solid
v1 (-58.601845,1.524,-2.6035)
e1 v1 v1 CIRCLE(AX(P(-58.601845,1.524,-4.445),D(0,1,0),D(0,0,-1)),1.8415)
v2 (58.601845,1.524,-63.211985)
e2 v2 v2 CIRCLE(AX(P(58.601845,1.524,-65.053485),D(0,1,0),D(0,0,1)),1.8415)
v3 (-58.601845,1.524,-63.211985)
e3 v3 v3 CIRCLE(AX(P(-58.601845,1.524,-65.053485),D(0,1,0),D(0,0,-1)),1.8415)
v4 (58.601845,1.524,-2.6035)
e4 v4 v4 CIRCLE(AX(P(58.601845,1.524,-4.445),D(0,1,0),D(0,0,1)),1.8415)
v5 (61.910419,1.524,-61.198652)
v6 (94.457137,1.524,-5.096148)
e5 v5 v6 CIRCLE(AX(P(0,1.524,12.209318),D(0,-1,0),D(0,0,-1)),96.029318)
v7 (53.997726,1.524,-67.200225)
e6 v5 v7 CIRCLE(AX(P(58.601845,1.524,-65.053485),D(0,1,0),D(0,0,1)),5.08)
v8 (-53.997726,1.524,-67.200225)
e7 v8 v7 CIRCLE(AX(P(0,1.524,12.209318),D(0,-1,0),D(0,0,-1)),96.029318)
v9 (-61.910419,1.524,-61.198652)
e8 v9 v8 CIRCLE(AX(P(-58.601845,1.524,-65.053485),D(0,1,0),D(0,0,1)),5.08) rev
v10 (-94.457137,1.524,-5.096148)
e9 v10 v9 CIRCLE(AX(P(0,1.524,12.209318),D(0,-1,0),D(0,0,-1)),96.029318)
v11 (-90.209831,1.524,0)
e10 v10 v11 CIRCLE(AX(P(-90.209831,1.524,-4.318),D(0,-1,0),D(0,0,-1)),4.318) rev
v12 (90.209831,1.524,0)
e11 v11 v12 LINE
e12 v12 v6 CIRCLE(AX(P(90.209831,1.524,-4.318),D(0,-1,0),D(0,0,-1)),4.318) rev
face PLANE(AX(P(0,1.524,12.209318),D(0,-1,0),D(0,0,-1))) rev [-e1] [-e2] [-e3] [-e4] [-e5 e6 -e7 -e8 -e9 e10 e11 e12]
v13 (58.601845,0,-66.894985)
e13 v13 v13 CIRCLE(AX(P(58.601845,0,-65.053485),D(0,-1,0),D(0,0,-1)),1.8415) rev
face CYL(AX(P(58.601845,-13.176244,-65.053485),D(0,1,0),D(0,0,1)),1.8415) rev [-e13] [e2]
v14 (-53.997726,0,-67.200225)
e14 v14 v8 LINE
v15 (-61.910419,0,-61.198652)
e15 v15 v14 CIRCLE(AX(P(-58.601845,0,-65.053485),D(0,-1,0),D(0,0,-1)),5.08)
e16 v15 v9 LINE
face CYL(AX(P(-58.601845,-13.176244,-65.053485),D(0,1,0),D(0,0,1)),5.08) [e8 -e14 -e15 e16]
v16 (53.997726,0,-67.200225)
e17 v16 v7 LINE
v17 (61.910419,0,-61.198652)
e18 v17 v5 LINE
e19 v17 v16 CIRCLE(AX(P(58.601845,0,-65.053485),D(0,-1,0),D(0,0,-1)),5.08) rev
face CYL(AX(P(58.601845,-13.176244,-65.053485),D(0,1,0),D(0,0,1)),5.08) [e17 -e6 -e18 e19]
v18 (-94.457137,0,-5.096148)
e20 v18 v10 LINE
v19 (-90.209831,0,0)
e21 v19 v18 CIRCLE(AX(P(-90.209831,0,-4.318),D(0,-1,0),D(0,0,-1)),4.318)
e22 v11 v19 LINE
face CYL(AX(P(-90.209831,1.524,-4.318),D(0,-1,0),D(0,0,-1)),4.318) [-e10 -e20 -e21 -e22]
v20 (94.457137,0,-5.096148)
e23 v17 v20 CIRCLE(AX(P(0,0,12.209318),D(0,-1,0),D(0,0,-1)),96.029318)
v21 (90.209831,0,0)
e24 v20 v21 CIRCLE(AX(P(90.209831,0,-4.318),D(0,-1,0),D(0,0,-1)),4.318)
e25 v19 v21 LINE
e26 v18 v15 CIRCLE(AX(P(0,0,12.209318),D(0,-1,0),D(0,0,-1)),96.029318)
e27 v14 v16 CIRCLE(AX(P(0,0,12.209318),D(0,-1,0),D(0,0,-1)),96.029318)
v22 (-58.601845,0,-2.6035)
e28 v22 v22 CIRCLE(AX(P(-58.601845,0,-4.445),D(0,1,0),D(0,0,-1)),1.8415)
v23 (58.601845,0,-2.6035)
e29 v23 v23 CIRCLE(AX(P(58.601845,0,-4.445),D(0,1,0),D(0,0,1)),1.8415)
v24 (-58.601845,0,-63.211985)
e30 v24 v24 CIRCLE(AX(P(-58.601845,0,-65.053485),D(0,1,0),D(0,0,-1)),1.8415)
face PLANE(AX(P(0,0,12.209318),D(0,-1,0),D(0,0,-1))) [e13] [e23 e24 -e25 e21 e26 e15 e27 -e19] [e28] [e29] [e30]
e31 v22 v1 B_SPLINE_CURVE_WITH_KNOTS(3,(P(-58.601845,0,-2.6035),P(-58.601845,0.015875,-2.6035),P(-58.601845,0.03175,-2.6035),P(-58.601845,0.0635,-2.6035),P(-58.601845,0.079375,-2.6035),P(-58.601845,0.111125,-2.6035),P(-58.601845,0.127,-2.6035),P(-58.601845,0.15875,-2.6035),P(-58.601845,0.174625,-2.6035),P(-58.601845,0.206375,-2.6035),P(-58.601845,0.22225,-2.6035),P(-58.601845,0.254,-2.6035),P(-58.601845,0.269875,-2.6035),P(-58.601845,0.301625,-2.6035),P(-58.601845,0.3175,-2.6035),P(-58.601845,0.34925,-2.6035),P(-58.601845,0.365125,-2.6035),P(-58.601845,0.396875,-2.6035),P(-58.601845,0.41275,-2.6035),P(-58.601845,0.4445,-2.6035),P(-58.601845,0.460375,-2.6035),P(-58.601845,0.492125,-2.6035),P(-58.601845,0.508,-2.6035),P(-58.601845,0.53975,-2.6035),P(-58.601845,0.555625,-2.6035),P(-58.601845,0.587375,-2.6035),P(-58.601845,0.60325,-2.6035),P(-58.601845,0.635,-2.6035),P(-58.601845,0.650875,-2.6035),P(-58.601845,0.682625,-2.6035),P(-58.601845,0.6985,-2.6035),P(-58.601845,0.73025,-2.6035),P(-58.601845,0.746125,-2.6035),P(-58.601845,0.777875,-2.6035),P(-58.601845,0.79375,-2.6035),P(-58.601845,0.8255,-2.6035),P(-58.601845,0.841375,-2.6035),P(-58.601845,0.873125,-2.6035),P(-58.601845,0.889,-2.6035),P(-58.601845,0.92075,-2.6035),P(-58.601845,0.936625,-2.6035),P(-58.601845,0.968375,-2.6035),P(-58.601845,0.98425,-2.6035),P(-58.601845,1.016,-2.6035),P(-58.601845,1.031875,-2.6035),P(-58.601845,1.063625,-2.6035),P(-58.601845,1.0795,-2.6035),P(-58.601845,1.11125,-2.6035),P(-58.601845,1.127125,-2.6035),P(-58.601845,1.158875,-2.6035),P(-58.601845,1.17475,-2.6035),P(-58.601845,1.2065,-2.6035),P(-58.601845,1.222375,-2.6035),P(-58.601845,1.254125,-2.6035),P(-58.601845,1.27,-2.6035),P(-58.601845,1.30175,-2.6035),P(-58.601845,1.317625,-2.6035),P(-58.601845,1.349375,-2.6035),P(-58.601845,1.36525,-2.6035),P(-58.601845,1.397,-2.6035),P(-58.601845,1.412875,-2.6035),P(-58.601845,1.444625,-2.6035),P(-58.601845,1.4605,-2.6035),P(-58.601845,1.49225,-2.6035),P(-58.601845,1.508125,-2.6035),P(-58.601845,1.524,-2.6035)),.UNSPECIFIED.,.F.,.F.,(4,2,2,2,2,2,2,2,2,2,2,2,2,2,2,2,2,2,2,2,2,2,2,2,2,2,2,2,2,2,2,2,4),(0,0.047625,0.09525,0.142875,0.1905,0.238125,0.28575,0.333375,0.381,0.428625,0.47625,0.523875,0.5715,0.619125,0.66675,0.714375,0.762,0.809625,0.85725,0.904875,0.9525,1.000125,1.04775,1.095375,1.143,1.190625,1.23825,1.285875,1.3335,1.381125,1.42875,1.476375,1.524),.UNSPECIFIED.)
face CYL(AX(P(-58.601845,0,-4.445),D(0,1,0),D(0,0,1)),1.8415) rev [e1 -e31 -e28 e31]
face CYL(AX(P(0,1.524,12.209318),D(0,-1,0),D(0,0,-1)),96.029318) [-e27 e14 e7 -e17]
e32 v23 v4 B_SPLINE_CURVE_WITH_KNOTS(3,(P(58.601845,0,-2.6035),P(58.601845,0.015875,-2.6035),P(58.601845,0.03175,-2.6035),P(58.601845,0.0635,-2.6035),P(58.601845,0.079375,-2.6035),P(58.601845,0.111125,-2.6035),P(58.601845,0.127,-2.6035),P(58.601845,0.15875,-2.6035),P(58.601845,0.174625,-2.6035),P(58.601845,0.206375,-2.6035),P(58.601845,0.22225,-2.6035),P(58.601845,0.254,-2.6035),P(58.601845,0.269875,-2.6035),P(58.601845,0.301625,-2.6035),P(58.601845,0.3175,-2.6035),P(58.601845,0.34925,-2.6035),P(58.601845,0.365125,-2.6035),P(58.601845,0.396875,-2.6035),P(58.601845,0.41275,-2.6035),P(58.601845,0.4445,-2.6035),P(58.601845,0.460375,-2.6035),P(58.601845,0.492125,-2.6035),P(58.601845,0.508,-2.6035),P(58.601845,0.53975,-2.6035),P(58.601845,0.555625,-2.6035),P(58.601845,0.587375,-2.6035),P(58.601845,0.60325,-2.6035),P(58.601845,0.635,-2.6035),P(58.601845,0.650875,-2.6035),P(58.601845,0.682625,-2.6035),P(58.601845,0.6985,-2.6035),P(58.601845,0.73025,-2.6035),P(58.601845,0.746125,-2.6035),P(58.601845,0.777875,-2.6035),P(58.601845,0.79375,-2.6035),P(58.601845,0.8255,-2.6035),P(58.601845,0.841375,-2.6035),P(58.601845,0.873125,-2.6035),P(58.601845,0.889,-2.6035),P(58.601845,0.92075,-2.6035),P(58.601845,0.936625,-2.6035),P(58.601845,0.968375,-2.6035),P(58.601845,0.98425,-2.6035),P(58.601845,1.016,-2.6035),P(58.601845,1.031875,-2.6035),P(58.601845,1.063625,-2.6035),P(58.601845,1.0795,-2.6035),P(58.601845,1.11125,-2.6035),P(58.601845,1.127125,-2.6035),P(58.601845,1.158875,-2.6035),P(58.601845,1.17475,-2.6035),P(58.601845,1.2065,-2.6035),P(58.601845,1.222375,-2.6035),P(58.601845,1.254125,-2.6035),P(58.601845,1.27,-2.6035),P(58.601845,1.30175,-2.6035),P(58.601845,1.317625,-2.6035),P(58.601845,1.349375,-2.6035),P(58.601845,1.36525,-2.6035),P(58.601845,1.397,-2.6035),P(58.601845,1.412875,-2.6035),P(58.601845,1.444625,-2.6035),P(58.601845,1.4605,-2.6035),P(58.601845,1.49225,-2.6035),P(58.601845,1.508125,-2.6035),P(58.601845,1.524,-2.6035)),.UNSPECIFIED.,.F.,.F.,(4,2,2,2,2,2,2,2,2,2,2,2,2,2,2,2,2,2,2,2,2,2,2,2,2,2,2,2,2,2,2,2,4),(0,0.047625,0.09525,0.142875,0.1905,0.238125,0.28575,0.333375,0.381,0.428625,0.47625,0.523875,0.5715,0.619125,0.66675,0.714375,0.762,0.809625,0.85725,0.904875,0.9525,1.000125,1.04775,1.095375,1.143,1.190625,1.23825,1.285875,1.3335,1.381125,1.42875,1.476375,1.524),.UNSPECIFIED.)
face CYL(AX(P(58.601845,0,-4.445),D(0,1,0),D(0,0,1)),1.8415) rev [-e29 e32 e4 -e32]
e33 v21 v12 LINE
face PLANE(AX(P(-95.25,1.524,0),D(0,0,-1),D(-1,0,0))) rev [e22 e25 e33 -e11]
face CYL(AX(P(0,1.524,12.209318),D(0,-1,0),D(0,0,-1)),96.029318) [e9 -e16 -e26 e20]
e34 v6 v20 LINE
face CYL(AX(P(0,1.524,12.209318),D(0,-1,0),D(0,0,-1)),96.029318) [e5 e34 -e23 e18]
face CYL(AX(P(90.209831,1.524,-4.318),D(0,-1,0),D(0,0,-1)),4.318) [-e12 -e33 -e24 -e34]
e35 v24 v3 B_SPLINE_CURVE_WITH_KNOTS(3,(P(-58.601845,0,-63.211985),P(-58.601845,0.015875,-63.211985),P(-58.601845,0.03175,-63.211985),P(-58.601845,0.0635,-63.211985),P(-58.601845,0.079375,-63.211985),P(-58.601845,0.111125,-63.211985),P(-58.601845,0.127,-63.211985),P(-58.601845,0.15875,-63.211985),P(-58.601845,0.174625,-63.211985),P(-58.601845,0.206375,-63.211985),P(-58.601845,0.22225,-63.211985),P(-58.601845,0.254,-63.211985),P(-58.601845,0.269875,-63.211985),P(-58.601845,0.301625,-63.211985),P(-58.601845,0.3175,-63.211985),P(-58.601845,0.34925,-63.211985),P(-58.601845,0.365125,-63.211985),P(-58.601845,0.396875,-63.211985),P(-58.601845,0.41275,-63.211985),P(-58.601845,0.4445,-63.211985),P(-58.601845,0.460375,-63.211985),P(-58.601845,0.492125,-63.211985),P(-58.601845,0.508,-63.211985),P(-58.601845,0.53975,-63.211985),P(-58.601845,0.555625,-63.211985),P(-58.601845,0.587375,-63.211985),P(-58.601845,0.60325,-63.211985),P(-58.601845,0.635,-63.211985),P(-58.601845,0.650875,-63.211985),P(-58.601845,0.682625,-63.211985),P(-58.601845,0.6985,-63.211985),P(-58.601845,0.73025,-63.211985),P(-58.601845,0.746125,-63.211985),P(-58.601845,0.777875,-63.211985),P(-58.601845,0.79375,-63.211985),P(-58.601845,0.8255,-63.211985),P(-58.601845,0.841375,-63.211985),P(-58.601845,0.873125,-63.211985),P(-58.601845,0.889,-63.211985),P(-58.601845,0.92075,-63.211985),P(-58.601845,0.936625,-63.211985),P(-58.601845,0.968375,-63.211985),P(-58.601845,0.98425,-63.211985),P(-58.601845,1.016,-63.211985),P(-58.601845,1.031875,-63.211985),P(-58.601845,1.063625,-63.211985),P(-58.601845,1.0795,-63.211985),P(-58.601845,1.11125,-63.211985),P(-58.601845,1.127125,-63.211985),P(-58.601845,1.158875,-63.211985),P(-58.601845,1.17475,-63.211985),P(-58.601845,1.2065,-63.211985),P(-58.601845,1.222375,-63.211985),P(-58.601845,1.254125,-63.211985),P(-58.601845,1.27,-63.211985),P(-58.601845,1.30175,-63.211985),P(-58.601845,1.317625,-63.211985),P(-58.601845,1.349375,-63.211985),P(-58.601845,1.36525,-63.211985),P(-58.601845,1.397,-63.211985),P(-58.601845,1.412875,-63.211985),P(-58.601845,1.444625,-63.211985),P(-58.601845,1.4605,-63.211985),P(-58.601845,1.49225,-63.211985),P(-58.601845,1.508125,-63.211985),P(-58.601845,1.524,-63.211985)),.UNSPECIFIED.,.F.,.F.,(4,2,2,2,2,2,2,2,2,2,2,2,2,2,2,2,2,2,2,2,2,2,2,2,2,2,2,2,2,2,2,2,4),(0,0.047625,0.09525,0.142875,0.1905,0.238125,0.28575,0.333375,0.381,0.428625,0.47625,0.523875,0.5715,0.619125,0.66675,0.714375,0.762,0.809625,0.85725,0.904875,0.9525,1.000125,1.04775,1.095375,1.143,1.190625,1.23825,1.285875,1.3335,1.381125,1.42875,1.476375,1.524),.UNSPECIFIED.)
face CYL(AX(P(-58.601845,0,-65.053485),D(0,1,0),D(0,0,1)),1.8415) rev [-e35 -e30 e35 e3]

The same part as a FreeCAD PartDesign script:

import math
import FreeCAD as App
import Part
import Sketcher
Q = App.Units.Quantity


def edges_at(feature, points):
    """Names of the edges that pass closest to the given points."""
    edges = feature.Shape.Edges
    near = lambda p: min(range(len(edges)), key=lambda i: edges[i].distToShape(Part.Vertex(*p))[0])
    return sorted({f"Edge{near(p) + 1}" for p in points})

doc = App.newDocument("Part")
body = doc.addObject("PartDesign::Body", "Body")

# Sketch on XZ plane
sketch1 = body.newObject("Sketcher::SketchObject", "Sketch")
sketch1.AttachmentSupport = (doc.getObject("XZ_Plane"), [""])
sketch1.MapMode = "FlatFace"
sketch1.addGeometry(Part.LineSegment(App.Vector(-95.25, 0, 0), App.Vector(95.25, 0, 0)), False)
sketch1.addGeometry(Part.ArcOfCircle(Part.Circle(App.Vector(0, 12.209318, 0), App.Vector(0, 0, 1), 96.029318), math.radians(-172.695554), math.radians(-7.304446)), False)
sketch1.addConstraint(Sketcher.Constraint("Coincident", 0, 1, 1, 1))
sketch1.addConstraint(Sketcher.Constraint("Coincident", 1, 2, 0, 2))
sketch1.addConstraint(Sketcher.Constraint("Horizontal", 0))
sketch1.addConstraint(Sketcher.Constraint("Symmetric", 0, 1, 1, 2, -1, 1))
sketch1.addConstraint(Sketcher.Constraint("DistanceX", 0, 1, 0, 2, Q("7.5 in")))
sketch1.addConstraint(Sketcher.Constraint("Radius", 1, 96.029318))
pad1 = body.newObject("PartDesign::Pad", "Pad")
pad1.Profile = sketch1
pad1.Length = Q("0.06 in")
pad1.Reversed = True
doc.recompute()

fillet = body.newObject("PartDesign::Fillet", "Fillet")
fillet.Base = (pad1, edges_at(pad1, [(-95.25, 0.762, 0), (95.25, 0.762, 0)]))
fillet.Radius = Q("0.17 in")

# Sketch on XZ plane
sketch2 = body.newObject("Sketcher::SketchObject", "Sketch001")
sketch2.AttachmentSupport = (doc.getObject("XZ_Plane"), [""])
sketch2.MapMode = "FlatFace"
sketch2.addGeometry(Part.ArcOfCircle(Part.Circle(App.Vector(58.601845, -65.053485, 0), App.Vector(0, 0, 1), 5.08), math.radians(-155.00201), math.radians(49.36077)), False)
sketch2.addGeometry(Part.ArcOfCircle(Part.Circle(App.Vector(0, 12.209318, 0), App.Vector(0, 0, 1), 96.029318), math.radians(-55.784674), math.radians(-53.759609)), False)
sketch2.addGeometry(Part.ArcOfCircle(Part.Circle(App.Vector(58.601845, -65.053485, 0), App.Vector(0, 0, 1), 1.8415), math.radians(-174.10779), math.radians(68.466549)), False)
sketch2.addGeometry(Part.ArcOfCircle(Part.Circle(App.Vector(-0.000002, 12.209321, 0), App.Vector(0, 0, 1), 96.029322), math.radians(-51.881632), math.radians(-49.856566)), False)
sketch2.addGeometry(Part.ArcOfCircle(Part.Circle(App.Vector(-58.601845, -65.053485, 0), App.Vector(0, 0, 1), 5.08), math.radians(130.63923), math.radians(335.00201)), False)
sketch2.addGeometry(Part.ArcOfCircle(Part.Circle(App.Vector(0, 12.209318, 0), App.Vector(0, 0, 1), 96.029318), math.radians(-130.143434), math.radians(-124.215326)), False)
sketch2.addConstraint(Sketcher.Constraint("Coincident", 0, 1, 1, 1))
sketch2.addConstraint(Sketcher.Constraint("Coincident", 1, 2, 2, 1))
sketch2.addConstraint(Sketcher.Constraint("Coincident", 2, 2, 3, 1))
sketch2.addConstraint(Sketcher.Constraint("Coincident", 3, 2, 0, 2))
sketch2.addConstraint(Sketcher.Constraint("Coincident", 4, 1, 5, 1))
sketch2.addConstraint(Sketcher.Constraint("Coincident", 5, 2, 4, 2))
sketch2.addConstraint(Sketcher.Constraint("Coincident", 2, 3, 0, 3))
sketch2.addConstraint(Sketcher.Constraint("Coincident", 3, 3, 1, 3))
sketch2.addConstraint(Sketcher.Constraint("Coincident", 5, 3, 1, 3))
sketch2.addConstraint(Sketcher.Constraint("Equal", 0, 4))
sketch2.addConstraint(Sketcher.Constraint("Equal", 1, 5))
sketch2.addConstraint(Sketcher.Constraint("Symmetric", 0, 3, 4, 3, -2))
sketch2.addConstraint(Sketcher.Constraint("PointOnObject", 1, 3, -2))
sketch2.addConstraint(Sketcher.Constraint("Horizontal", 3, 2, 4, 1))
sketch2.addConstraint(Sketcher.Constraint("Radius", 0, Q("0.2 in")))
sketch2.addConstraint(Sketcher.Constraint("Radius", 2, Q("0.0725 in")))
sketch2.addConstraint(Sketcher.Constraint("Radius", 1, 96.029318))
sketch2.addConstraint(Sketcher.Constraint("DistanceY", -1, 1, 1, 3, 12.209318))
sketch2.addConstraint(Sketcher.Constraint("DistanceY", 1, 2, -1, 1, 65.242529))
sketch2.addConstraint(Sketcher.Constraint("DistanceX", -1, 1, 3, 2, 61.910419))
pad2 = body.newObject("PartDesign::Pad", "Pad001")
pad2.Profile = sketch2
pad2.Length = Q("0.06 in")
pad2.Reversed = True

# Sketch on XZ plane
sketch3 = body.newObject("Sketcher::SketchObject", "Sketch002")
sketch3.AttachmentSupport = (doc.getObject("XZ_Plane"), [""])
sketch3.MapMode = "FlatFace"
sketch3.AttachmentOffset = App.Placement(App.Vector(0, 0, -0.06 * 25.4), App.Rotation())
sketch3.addGeometry(Part.Circle(App.Vector(58.601845, -65.053485, 0), App.Vector(0, 0, 1), 1.8415), False)
sketch3.addGeometry(Part.Circle(App.Vector(-58.601845, -65.053485, 0), App.Vector(0, 0, 1), 1.8415), False)
sketch3.addGeometry(Part.Circle(App.Vector(58.601845, -4.445, 0), App.Vector(0, 0, 1), 1.8415), False)
sketch3.addGeometry(Part.Circle(App.Vector(-58.601845, -4.445, 0), App.Vector(0, 0, 1), 1.8415), False)
sketch3.addConstraint(Sketcher.Constraint("Equal", 0, 1))
sketch3.addConstraint(Sketcher.Constraint("Equal", 1, 2))
sketch3.addConstraint(Sketcher.Constraint("Equal", 2, 3))
sketch3.addConstraint(Sketcher.Constraint("Symmetric", 0, 3, 1, 3, -2))
sketch3.addConstraint(Sketcher.Constraint("Symmetric", 2, 3, 3, 3, -2))
sketch3.addConstraint(Sketcher.Constraint("Vertical", 0, 3, 2, 3))
sketch3.addConstraint(Sketcher.Constraint("Diameter", 0, Q("0.145 in")))
sketch3.addConstraint(Sketcher.Constraint("DistanceY", 2, 3, -1, 1, Q("0.175 in")))
sketch3.addConstraint(Sketcher.Constraint("DistanceX", 1, 3, 0, 3, 117.203691))
sketch3.addConstraint(Sketcher.Constraint("DistanceY", 0, 3, -1, 1, 65.053485))
pocket1 = body.newObject("PartDesign::Pocket", "Pocket")
pocket1.Profile = sketch3
pocket1.Type = "ThroughAll"
pocket1.Reversed = True

doc.recompute()
